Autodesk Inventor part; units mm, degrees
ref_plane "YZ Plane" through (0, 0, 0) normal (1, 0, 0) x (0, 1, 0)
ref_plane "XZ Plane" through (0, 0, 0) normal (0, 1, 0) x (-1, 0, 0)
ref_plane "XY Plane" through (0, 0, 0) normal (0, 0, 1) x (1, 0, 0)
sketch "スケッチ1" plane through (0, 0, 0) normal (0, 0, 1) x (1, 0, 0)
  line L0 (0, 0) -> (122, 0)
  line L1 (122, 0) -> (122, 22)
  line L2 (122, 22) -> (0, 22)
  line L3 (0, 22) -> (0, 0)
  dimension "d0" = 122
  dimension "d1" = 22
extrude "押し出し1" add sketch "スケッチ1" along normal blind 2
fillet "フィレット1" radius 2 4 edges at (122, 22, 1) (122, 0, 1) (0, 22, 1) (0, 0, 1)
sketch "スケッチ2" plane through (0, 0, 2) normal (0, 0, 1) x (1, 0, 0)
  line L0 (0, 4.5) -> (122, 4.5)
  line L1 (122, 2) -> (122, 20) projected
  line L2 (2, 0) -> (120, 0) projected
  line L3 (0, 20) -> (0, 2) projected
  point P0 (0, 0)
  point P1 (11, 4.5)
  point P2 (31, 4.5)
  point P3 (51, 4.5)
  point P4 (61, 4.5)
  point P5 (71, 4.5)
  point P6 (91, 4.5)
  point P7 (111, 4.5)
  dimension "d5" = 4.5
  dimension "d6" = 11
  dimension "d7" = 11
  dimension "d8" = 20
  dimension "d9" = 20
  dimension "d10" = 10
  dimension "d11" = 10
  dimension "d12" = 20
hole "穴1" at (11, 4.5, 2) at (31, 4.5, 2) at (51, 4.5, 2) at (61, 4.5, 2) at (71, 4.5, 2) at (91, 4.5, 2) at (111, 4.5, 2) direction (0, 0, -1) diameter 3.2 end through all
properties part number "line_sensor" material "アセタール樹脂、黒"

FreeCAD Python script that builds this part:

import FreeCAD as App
import Part
import Sketcher

V = App.Vector
Q = App.Units.Quantity


def edges_at(feature, points):
    """Names of the edges that pass closest to the given points."""
    edges = feature.Shape.Edges
    near = lambda p: min(range(len(edges)), key=lambda i: edges[i].distToShape(Part.Vertex(*p))[0])
    return sorted({f"Edge{near(p) + 1}" for p in points})

doc = App.newDocument("Part")
body = doc.addObject("PartDesign::Body", "Body")

# Sketch on XY plane
sketch1 = body.newObject("Sketcher::SketchObject", "Sketch")
sketch1.AttachmentSupport = (doc.getObject("XY_Plane"), [""])
sketch1.MapMode = "FlatFace"
sketch1.addGeometry([
    Part.LineSegment(V(0, 22, 0), V(0, 0, 0)),
    Part.LineSegment(V(0, 0, 0), V(122, 0, 0)),
    Part.LineSegment(V(122, 0, 0), V(122, 22, 0)),
    Part.LineSegment(V(122, 22, 0), V(0, 22, 0)),
], False)
sketch1.addConstraint([
    Sketcher.Constraint("Coincident", 0, 2, 1, 1),
    Sketcher.Constraint("Coincident", 1, 2, 2, 1),
    Sketcher.Constraint("Coincident", 2, 2, 3, 1),
    Sketcher.Constraint("Coincident", 3, 2, 0, 1),
    Sketcher.Constraint("Vertical", 0),
    Sketcher.Constraint("Horizontal", 1),
    Sketcher.Constraint("Vertical", 2),
    Sketcher.Constraint("Horizontal", 3),
    Sketcher.Constraint("Coincident", 0, 2, -1, 1),
    Sketcher.Constraint("DistanceX", 1, 1, 1, 2, Q("122 mm")),
    Sketcher.Constraint("DistanceY", 0, 2, 0, 1, Q("22 mm")),
])
pad1 = body.newObject("PartDesign::Pad", "Pad")
pad1.Profile = sketch1
pad1.Length = 2
doc.recompute()

fillet = body.newObject("PartDesign::Fillet", "Fillet")
fillet.Base = (pad1, edges_at(pad1, [
    (122, 22, 1),
    (122, 0, 1),
    (0, 22, 1),
    (0, 0, 1),
]))
fillet.Radius = 2

# Sketch on XY plane
sketch2 = body.newObject("Sketcher::SketchObject", "Sketch001")
sketch2.AttachmentSupport = (doc.getObject("XY_Plane"), [""])
sketch2.MapMode = "FlatFace"
sketch2.AttachmentOffset = App.Placement(V(0, 0, 2), App.Rotation())
sketch2.addGeometry([
    Part.Circle(V(11, 4.5, 0), V(0, 0, 1), 1.6),  # 0
    Part.Circle(V(31, 4.5, 0), V(0, 0, 1), 1.6),  # 1
    Part.Circle(V(51, 4.5, 0), V(0, 0, 1), 1.6),  # 2
    Part.Circle(V(61, 4.5, 0), V(0, 0, 1), 1.6),  # 3
    Part.Circle(V(71, 4.5, 0), V(0, 0, 1), 1.6),  # 4
    Part.Circle(V(91, 4.5, 0), V(0, 0, 1), 1.6),  # 5
    Part.Circle(V(111, 4.5, 0), V(0, 0, 1), 1.6),  # 6
], False)
sketch2.addConstraint([
    Sketcher.Constraint("Equal", 0, 1),
    Sketcher.Constraint("Equal", 1, 2),
    Sketcher.Constraint("Equal", 2, 3),
    Sketcher.Constraint("Equal", 3, 4),
    Sketcher.Constraint("Equal", 4, 5),
    Sketcher.Constraint("Equal", 5, 6),
    Sketcher.Constraint("Horizontal", 0, 3, 1, 3),
    Sketcher.Constraint("Horizontal", 1, 3, 2, 3),
    Sketcher.Constraint("Horizontal", 2, 3, 3, 3),
    Sketcher.Constraint("Horizontal", 3, 3, 4, 3),
    Sketcher.Constraint("Horizontal", 4, 3, 5, 3),
    Sketcher.Constraint("Horizontal", 5, 3, 6, 3),
    Sketcher.Constraint("Diameter", 0, Q("3.2 mm")),
    Sketcher.Constraint("DistanceX", -1, 1, 0, 3, Q("11 mm")),
    Sketcher.Constraint("DistanceX", -1, 1, 1, 3, Q("31 mm")),
    Sketcher.Constraint("DistanceX", -1, 1, 2, 3, Q("51 mm")),
    Sketcher.Constraint("DistanceX", -1, 1, 3, 3, Q("61 mm")),
    Sketcher.Constraint("DistanceX", -1, 1, 4, 3, Q("71 mm")),
    Sketcher.Constraint("DistanceX", -1, 1, 5, 3, Q("91 mm")),
    Sketcher.Constraint("DistanceX", -1, 1, 6, 3, Q("111 mm")),
    Sketcher.Constraint("DistanceY", -1, 1, 0, 3, Q("4.5 mm")),
])
doc.recompute()
hole = body.newObject("PartDesign::Hole", "Hole")
hole.Profile = sketch2
hole.ThreadType = "None"
hole.Diameter = 3.2
hole.DepthType = "ThroughAll"

doc.recompute()
